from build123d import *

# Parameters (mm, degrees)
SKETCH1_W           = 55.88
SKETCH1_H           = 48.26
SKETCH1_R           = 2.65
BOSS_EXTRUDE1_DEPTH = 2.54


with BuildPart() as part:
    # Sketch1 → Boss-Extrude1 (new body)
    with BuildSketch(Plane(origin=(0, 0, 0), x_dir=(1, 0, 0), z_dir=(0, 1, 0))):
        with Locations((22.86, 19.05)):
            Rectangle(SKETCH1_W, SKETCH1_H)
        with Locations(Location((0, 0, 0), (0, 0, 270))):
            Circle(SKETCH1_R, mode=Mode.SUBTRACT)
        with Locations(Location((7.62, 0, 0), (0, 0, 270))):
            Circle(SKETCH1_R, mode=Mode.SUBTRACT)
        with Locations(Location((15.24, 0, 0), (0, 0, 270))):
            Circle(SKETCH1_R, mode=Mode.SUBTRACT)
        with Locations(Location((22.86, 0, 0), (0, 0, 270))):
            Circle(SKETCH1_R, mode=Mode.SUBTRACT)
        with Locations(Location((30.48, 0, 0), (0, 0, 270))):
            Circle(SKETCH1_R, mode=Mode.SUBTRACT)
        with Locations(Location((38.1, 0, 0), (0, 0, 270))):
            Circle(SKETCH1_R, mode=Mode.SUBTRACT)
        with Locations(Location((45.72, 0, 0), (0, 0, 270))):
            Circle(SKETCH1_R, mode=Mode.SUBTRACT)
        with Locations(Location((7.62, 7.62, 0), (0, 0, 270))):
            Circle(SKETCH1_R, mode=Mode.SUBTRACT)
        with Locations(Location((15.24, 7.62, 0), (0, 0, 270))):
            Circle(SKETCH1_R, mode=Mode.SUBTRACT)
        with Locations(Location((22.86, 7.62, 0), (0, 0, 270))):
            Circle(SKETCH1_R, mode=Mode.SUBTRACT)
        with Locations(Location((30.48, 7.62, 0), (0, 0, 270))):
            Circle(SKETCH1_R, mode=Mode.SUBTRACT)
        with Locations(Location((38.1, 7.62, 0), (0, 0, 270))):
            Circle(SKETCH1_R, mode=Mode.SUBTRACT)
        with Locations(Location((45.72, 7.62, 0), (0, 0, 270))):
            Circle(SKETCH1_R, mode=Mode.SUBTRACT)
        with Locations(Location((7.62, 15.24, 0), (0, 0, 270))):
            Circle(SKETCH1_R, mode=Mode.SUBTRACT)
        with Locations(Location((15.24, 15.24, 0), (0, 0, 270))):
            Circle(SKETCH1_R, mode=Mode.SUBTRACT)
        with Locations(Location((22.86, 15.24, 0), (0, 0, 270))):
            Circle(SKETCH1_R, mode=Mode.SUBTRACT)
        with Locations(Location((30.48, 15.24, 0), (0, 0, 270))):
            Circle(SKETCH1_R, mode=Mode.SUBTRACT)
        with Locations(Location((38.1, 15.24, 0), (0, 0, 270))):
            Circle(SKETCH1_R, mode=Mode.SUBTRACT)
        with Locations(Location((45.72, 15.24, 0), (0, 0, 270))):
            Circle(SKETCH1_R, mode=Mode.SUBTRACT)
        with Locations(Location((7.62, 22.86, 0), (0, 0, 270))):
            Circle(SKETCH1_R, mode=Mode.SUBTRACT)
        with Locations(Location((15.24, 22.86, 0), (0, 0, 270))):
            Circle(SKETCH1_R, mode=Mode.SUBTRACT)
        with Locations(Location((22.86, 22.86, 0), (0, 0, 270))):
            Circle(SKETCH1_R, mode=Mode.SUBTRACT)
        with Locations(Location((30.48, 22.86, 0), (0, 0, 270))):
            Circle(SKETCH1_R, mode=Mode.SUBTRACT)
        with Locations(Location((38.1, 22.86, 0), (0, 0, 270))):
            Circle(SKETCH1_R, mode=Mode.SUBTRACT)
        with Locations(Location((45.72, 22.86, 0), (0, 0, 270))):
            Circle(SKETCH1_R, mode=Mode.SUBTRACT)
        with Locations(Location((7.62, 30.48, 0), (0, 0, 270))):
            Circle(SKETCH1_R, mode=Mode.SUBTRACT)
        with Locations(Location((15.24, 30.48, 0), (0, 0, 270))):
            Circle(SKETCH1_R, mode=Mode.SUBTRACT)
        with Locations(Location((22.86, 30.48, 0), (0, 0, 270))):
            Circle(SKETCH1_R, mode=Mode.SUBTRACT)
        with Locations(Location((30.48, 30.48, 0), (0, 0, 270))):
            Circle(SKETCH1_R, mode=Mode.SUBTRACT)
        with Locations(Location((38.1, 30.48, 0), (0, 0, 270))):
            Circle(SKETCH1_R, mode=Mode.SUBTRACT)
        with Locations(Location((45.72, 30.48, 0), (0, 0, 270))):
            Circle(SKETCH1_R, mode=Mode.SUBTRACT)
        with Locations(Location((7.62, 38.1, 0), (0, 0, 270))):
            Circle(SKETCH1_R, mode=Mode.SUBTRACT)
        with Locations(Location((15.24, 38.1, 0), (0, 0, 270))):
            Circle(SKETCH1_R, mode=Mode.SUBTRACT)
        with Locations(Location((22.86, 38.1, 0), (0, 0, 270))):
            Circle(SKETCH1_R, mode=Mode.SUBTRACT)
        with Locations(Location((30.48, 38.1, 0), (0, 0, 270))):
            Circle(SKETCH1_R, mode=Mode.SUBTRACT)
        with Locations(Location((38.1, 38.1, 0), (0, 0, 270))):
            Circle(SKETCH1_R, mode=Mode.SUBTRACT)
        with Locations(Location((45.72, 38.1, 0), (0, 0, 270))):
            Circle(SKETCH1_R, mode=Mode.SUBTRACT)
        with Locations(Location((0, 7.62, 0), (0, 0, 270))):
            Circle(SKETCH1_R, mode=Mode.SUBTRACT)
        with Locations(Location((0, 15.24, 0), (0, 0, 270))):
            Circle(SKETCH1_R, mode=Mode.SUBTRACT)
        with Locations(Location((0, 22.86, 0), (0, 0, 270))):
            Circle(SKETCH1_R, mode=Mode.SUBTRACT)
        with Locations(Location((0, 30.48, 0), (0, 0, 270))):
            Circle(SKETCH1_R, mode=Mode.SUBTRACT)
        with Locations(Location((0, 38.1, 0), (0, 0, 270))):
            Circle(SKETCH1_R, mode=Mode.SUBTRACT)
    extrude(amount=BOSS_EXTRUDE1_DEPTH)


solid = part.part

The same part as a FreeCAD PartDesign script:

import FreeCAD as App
import Part
import Sketcher

V = App.Vector
Q = App.Units.Quantity


def add_polygon(sketch, points):
    """Adds a closed chain of lines whose ends are joined by coincident constraints."""
    first, n = sketch.GeometryCount, len(points)
    for a, b in zip(points, points[1:] + points[:1]):
        sketch.addGeometry(Part.LineSegment(App.Vector(*a, 0), App.Vector(*b, 0)), False)
    for i in range(n):
        sketch.addConstraint(Sketcher.Constraint("Coincident", first + i, 2, first + (i + 1) % n, 1))

doc = App.newDocument("Part")
params = doc.addObject("Spreadsheet::Sheet", "Params")
for row, (alias, value) in enumerate([
    ("sketch1_width", "2.2 in"),
    ("sketch1_height", "1.9 in"),
    ("pad1_length", "0.1 in"),
], start=1):
    params.set(f"A{row}", alias)
    params.set(f"B{row}", "=" + value)
    params.setAlias(f"B{row}", alias)

body = doc.addObject("PartDesign::Body", "Body")

sketch1 = body.newObject("Sketcher::SketchObject", "Sketch")
sketch1.AttachmentSupport = (doc.getObject("XZ_Plane"), [""])
sketch1.MapMode = "FlatFace"
add_polygon(sketch1, [(-5.1, -43.2), (-5.1, 5.1), (50.8, 5.1), (50.8, -43.2)])
sketch1.addGeometry(Part.Circle(V(0, 0, 0), V(0, 0, 1), 2.6), False)
sketch1.addGeometry(Part.Circle(V(7.6, 0, 0), V(0, 0, 1), 2.6), False)
sketch1.addGeometry(Part.Circle(V(0, -7.6, 0), V(0, 0, 1), 2.6), False)
sketch1.addGeometry(Part.Circle(V(7.6, -7.6, 0), V(0, 0, 1), 2.6), False)
sketch1.addGeometry(Part.Circle(V(15.2, 0, 0), V(0, 0, 1), 2.6), False)
sketch1.addGeometry(Part.Circle(V(15.2, -7.6, 0), V(0, 0, 1), 2.6), False)
sketch1.addGeometry(Part.Circle(V(0, -15.2, 0), V(0, 0, 1), 2.6), False)
sketch1.addGeometry(Part.Circle(V(7.6, -15.2, 0), V(0, 0, 1), 2.6), False)
sketch1.addGeometry(Part.Circle(V(15.2, -15.2, 0), V(0, 0, 1), 2.6), False)
sketch1.addGeometry(Part.Circle(V(22.9, 0, 0), V(0, 0, 1), 2.6), False)
sketch1.addGeometry(Part.Circle(V(30.5, 0, 0), V(0, 0, 1), 2.6), False)
sketch1.addGeometry(Part.Circle(V(22.9, -7.6, 0), V(0, 0, 1), 2.6), False)
sketch1.addGeometry(Part.Circle(V(30.5, -7.6, 0), V(0, 0, 1), 2.6), False)
sketch1.addGeometry(Part.Circle(V(38.1, 0, 0), V(0, 0, 1), 2.6), False)
sketch1.addGeometry(Part.Circle(V(45.7, 0, 0), V(0, 0, 1), 2.6), False)
sketch1.addGeometry(Part.Circle(V(38.1, -7.6, 0), V(0, 0, 1), 2.6), False)
sketch1.addGeometry(Part.Circle(V(45.7, -7.6, 0), V(0, 0, 1), 2.6), False)
sketch1.addGeometry(Part.Circle(V(22.9, -15.2, 0), V(0, 0, 1), 2.6), False)
sketch1.addGeometry(Part.Circle(V(30.5, -15.2, 0), V(0, 0, 1), 2.6), False)
sketch1.addGeometry(Part.Circle(V(38.1, -15.2, 0), V(0, 0, 1), 2.6), False)
sketch1.addGeometry(Part.Circle(V(45.7, -15.2, 0), V(0, 0, 1), 2.6), False)
sketch1.addGeometry(Part.Circle(V(0, -22.9, 0), V(0, 0, 1), 2.6), False)
sketch1.addGeometry(Part.Circle(V(7.6, -22.9, 0), V(0, 0, 1), 2.6), False)
sketch1.addGeometry(Part.Circle(V(15.2, -22.9, 0), V(0, 0, 1), 2.6), False)
sketch1.addGeometry(Part.Circle(V(0, -30.5, 0), V(0, 0, 1), 2.6), False)
sketch1.addGeometry(Part.Circle(V(7.6, -30.5, 0), V(0, 0, 1), 2.6), False)
sketch1.addGeometry(Part.Circle(V(0, -38.1, 0), V(0, 0, 1), 2.6), False)
sketch1.addGeometry(Part.Circle(V(7.6, -38.1, 0), V(0, 0, 1), 2.6), False)
sketch1.addGeometry(Part.Circle(V(15.2, -30.5, 0), V(0, 0, 1), 2.6), False)
sketch1.addGeometry(Part.Circle(V(15.2, -38.1, 0), V(0, 0, 1), 2.6), False)
sketch1.addGeometry(Part.Circle(V(22.9, -22.9, 0), V(0, 0, 1), 2.6), False)
sketch1.addGeometry(Part.Circle(V(30.5, -22.9, 0), V(0, 0, 1), 2.6), False)
sketch1.addGeometry(Part.Circle(V(38.1, -22.9, 0), V(0, 0, 1), 2.6), False)
sketch1.addGeometry(Part.Circle(V(45.7, -22.9, 0), V(0, 0, 1), 2.6), False)
sketch1.addGeometry(Part.Circle(V(22.9, -30.5, 0), V(0, 0, 1), 2.6), False)
sketch1.addGeometry(Part.Circle(V(30.5, -30.5, 0), V(0, 0, 1), 2.6), False)
sketch1.addGeometry(Part.Circle(V(22.9, -38.1, 0), V(0, 0, 1), 2.6), False)
sketch1.addGeometry(Part.Circle(V(30.5, -38.1, 0), V(0, 0, 1), 2.6), False)
sketch1.addGeometry(Part.Circle(V(38.1, -30.5, 0), V(0, 0, 1), 2.6), False)
sketch1.addGeometry(Part.Circle(V(45.7, -30.5, 0), V(0, 0, 1), 2.6), False)
sketch1.addGeometry(Part.Circle(V(38.1, -38.1, 0), V(0, 0, 1), 2.6), False)
sketch1.addGeometry(Part.Circle(V(45.7, -38.1, 0), V(0, 0, 1), 2.6), False)
sketch1.addConstraint([
    Sketcher.Constraint("Vertical", 0),
    Sketcher.Constraint("Horizontal", 1),
    Sketcher.Constraint("Vertical", 2),
    Sketcher.Constraint("Horizontal", 3),
    Sketcher.Constraint("Coincident", 4, 3, -1, 1),
    Sketcher.Constraint("Equal", 4, 5),
    Sketcher.Constraint("Equal", 5, 6),
    Sketcher.Constraint("Equal", 6, 7),
    Sketcher.Constraint("Equal", 7, 8),
    Sketcher.Constraint("Equal", 8, 9),
    Sketcher.Constraint("Equal", 9, 10),
    Sketcher.Constraint("Equal", 10, 11),
    Sketcher.Constraint("Equal", 11, 12),
    Sketcher.Constraint("Equal", 12, 13),
    Sketcher.Constraint("Equal", 13, 14),
    Sketcher.Constraint("Equal", 14, 15),
    Sketcher.Constraint("Equal", 15, 16),
    Sketcher.Constraint("Equal", 16, 17),
    Sketcher.Constraint("Equal", 17, 18),
    Sketcher.Constraint("Equal", 18, 19),
    Sketcher.Constraint("Equal", 19, 20),
    Sketcher.Constraint("Equal", 20, 21),
    Sketcher.Constraint("Equal", 21, 22),
    Sketcher.Constraint("Equal", 22, 23),
    Sketcher.Constraint("Equal", 23, 24),
    Sketcher.Constraint("Equal", 24, 25),
    Sketcher.Constraint("Equal", 25, 26),
    Sketcher.Constraint("Equal", 26, 27),
    Sketcher.Constraint("Equal", 27, 28),
    Sketcher.Constraint("Equal", 28, 29),
    Sketcher.Constraint("Equal", 29, 30),
    Sketcher.Constraint("Equal", 30, 31),
    Sketcher.Constraint("Equal", 31, 32),
    Sketcher.Constraint("Equal", 32, 33),
    Sketcher.Constraint("Equal", 33, 34),
    Sketcher.Constraint("Equal", 34, 35),
    Sketcher.Constraint("Equal", 35, 36),
    Sketcher.Constraint("Equal", 36, 37),
    Sketcher.Constraint("Equal", 37, 38),
    Sketcher.Constraint("Equal", 38, 39),
    Sketcher.Constraint("Equal", 39, 40),
    Sketcher.Constraint("Equal", 40, 41),
    Sketcher.Constraint("Equal", 41, 42),
    Sketcher.Constraint("Equal", 42, 43),
    Sketcher.Constraint("Equal", 43, 44),
    Sketcher.Constraint("Equal", 44, 45),
    Sketcher.Constraint("PointOnObject", 5, 3, -1),
    Sketcher.Constraint("PointOnObject", 6, 3, -2),
    Sketcher.Constraint("PointOnObject", 8, 3, -1),
    Sketcher.Constraint("PointOnObject", 10, 3, -2),
    Sketcher.Constraint("PointOnObject", 13, 3, -1),
    Sketcher.Constraint("PointOnObject", 14, 3, -1),
    Sketcher.Constraint("PointOnObject", 17, 3, -1),
    Sketcher.Constraint("PointOnObject", 18, 3, -1),
    Sketcher.Constraint("PointOnObject", 25, 3, -2),
    Sketcher.Constraint("PointOnObject", 28, 3, -2),
    Sketcher.Constraint("PointOnObject", 30, 3, -2),
    Sketcher.Constraint("Horizontal", 6, 3, 7, 3),
    Sketcher.Constraint("Horizontal", 7, 3, 9, 3),
    Sketcher.Constraint("Horizontal", 10, 3, 11, 3),
    Sketcher.Constraint("Horizontal", 11, 3, 12, 3),
    Sketcher.Constraint("Horizontal", 9, 3, 15, 3),
    Sketcher.Constraint("Horizontal", 15, 3, 16, 3),
    Sketcher.Constraint("Horizontal", 16, 3, 19, 3),
    Sketcher.Constraint("Horizontal", 19, 3, 20, 3),
    Sketcher.Constraint("Horizontal", 12, 3, 21, 3),
    Sketcher.Constraint("Horizontal", 21, 3, 22, 3),
    Sketcher.Constraint("Horizontal", 22, 3, 23, 3),
    Sketcher.Constraint("Horizontal", 23, 3, 24, 3),
    Sketcher.Constraint("Horizontal", 25, 3, 26, 3),
    Sketcher.Constraint("Horizontal", 26, 3, 27, 3),
    Sketcher.Constraint("Horizontal", 28, 3, 29, 3),
    Sketcher.Constraint("Horizontal", 30, 3, 31, 3),
    Sketcher.Constraint("Horizontal", 29, 3, 32, 3),
    Sketcher.Constraint("Horizontal", 31, 3, 33, 3),
    Sketcher.Constraint("Horizontal", 27, 3, 34, 3),
    Sketcher.Constraint("Horizontal", 34, 3, 35, 3),
    Sketcher.Constraint("Horizontal", 35, 3, 36, 3),
    Sketcher.Constraint("Horizontal", 36, 3, 37, 3),
    Sketcher.Constraint("Horizontal", 32, 3, 38, 3),
    Sketcher.Constraint("Horizontal", 38, 3, 39, 3),
    Sketcher.Constraint("Horizontal", 33, 3, 40, 3),
    Sketcher.Constraint("Horizontal", 40, 3, 41, 3),
    Sketcher.Constraint("Horizontal", 39, 3, 42, 3),
    Sketcher.Constraint("Horizontal", 42, 3, 43, 3),
    Sketcher.Constraint("Horizontal", 41, 3, 44, 3),
    Sketcher.Constraint("Horizontal", 44, 3, 45, 3),
    Sketcher.Constraint("Vertical", 5, 3, 7, 3),
    Sketcher.Constraint("Vertical", 8, 3, 9, 3),
    Sketcher.Constraint("Vertical", 7, 3, 11, 3),
    Sketcher.Constraint("Vertical", 9, 3, 12, 3),
    Sketcher.Constraint("Vertical", 13, 3, 15, 3),
    Sketcher.Constraint("Vertical", 14, 3, 16, 3),
    Sketcher.Constraint("Vertical", 17, 3, 19, 3),
    Sketcher.Constraint("Vertical", 18, 3, 20, 3),
    Sketcher.Constraint("Vertical", 15, 3, 21, 3),
    Sketcher.Constraint("Vertical", 16, 3, 22, 3),
    Sketcher.Constraint("Vertical", 19, 3, 23, 3),
    Sketcher.Constraint("Vertical", 20, 3, 24, 3),
    Sketcher.Constraint("Vertical", 11, 3, 26, 3),
    Sketcher.Constraint("Vertical", 12, 3, 27, 3),
    Sketcher.Constraint("Vertical", 26, 3, 29, 3),
    Sketcher.Constraint("Vertical", 29, 3, 31, 3),
    Sketcher.Constraint("Vertical", 27, 3, 32, 3),
    Sketcher.Constraint("Vertical", 32, 3, 33, 3),
    Sketcher.Constraint("Vertical", 21, 3, 34, 3),
    Sketcher.Constraint("Vertical", 22, 3, 35, 3),
    Sketcher.Constraint("Vertical", 23, 3, 36, 3),
    Sketcher.Constraint("Vertical", 24, 3, 37, 3),
    Sketcher.Constraint("Vertical", 34, 3, 38, 3),
    Sketcher.Constraint("Vertical", 35, 3, 39, 3),
    Sketcher.Constraint("Vertical", 38, 3, 40, 3),
    Sketcher.Constraint("Vertical", 39, 3, 41, 3),
    Sketcher.Constraint("Vertical", 36, 3, 42, 3),
    Sketcher.Constraint("Vertical", 37, 3, 43, 3),
    Sketcher.Constraint("Vertical", 42, 3, 44, 3),
    Sketcher.Constraint("Vertical", 43, 3, 45, 3),
    Sketcher.Constraint("DistanceX", 1, 1, 1, 2, Q("2.2 in")),
    Sketcher.Constraint("DistanceY", 0, 1, 0, 2, Q("1.9 in")),
    Sketcher.Constraint("DistanceX", -1, 1, 1, 2, Q("2 in")),
    Sketcher.Constraint("DistanceX", -1, 1, 5, 3, Q("0.3 in")),
    Sketcher.Constraint("DistanceY", 6, 3, -1, 1, Q("0.3 in")),
    Sketcher.Constraint("DistanceX", -1, 1, 8, 3, Q("0.6 in")),
    Sketcher.Constraint("DistanceY", 10, 3, -1, 1, Q("0.6 in")),
    Sketcher.Constraint("DistanceX", -1, 1, 13, 3, Q("0.9 in")),
    Sketcher.Constraint("DistanceX", -1, 1, 14, 3, Q("1.2 in")),
    Sketcher.Constraint("DistanceX", -1, 1, 17, 3, Q("1.5 in")),
    Sketcher.Constraint("DistanceX", -1, 1, 18, 3, Q("1.8 in")),
    Sketcher.Constraint("DistanceY", 25, 3, -1, 1, Q("0.9 in")),
    Sketcher.Constraint("DistanceY", 28, 3, -1, 1, Q("1.2 in")),
    Sketcher.Constraint("DistanceY", 30, 3, -1, 1, Q("1.5 in")),
    Sketcher.Constraint("DistanceY", -1, 1, 0, 2, Q("0.2 in")),
    Sketcher.Constraint("Diameter", 4, 5.3),
])
sketch1.setExpression("Constraints[121]", "Params.sketch1_width")
sketch1.setExpression("Constraints[122]", "Params.sketch1_height")
pad1 = body.newObject("PartDesign::Pad", "Pad")
pad1.Profile = sketch1
pad1.setExpression("Length", "Params.pad1_length")
pad1.Reversed = True

doc.recompute()
